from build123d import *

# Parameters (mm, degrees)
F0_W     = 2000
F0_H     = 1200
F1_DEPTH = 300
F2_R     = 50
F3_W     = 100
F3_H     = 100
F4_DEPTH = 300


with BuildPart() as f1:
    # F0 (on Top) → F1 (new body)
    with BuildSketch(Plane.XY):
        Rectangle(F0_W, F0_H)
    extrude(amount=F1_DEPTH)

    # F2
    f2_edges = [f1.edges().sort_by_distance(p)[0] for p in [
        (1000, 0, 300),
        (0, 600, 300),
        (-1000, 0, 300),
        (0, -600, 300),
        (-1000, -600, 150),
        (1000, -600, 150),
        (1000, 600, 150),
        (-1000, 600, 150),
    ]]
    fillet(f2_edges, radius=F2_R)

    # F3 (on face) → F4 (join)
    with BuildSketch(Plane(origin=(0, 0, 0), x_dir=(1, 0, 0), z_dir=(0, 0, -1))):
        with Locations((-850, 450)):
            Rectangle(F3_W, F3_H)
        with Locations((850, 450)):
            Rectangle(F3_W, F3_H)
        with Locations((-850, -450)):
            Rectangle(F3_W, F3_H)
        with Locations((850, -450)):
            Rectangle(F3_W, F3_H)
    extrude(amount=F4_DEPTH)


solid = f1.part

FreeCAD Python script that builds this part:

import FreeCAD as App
import Part
import Sketcher

V = App.Vector


def edges_at(feature, points):
    """Names of the edges that pass closest to the given points."""
    edges = feature.Shape.Edges
    near = lambda p: min(range(len(edges)), key=lambda i: edges[i].distToShape(Part.Vertex(*p))[0])
    return sorted({f"Edge{near(p) + 1}" for p in points})


def add_polygon(sketch, points):
    """Adds a closed chain of lines whose ends are joined by coincident constraints."""
    first, n = sketch.GeometryCount, len(points)
    for a, b in zip(points, points[1:] + points[:1]):
        sketch.addGeometry(Part.LineSegment(App.Vector(*a, 0), App.Vector(*b, 0)), False)
    for i in range(n):
        sketch.addConstraint(Sketcher.Constraint("Coincident", first + i, 2, first + (i + 1) % n, 1))

doc = App.newDocument("Part")
body = doc.addObject("PartDesign::Body", "Body")

# Sketch on XY plane
sketch1 = body.newObject("Sketcher::SketchObject", "Sketch")
sketch1.AttachmentSupport = (doc.getObject("XY_Plane"), [""])
sketch1.MapMode = "FlatFace"
add_polygon(sketch1, [(-1000, 600), (-1000, -600), (1000, -600), (1000, 600)])  # lines 0-3
sketch1.addConstraint(Sketcher.Constraint("Vertical", 0))
sketch1.addConstraint(Sketcher.Constraint("Horizontal", 1))
sketch1.addConstraint(Sketcher.Constraint("Vertical", 2))
sketch1.addConstraint(Sketcher.Constraint("Horizontal", 3))
sketch1.addConstraint(Sketcher.Constraint("Symmetric", 0, 2, 2, 2, -1, 1))
sketch1.addConstraint(Sketcher.Constraint("DistanceX", 1, 1, 1, 2, 2000.0))
sketch1.addConstraint(Sketcher.Constraint("DistanceY", 0, 2, 0, 1, 1200.0))
pad1 = body.newObject("PartDesign::Pad", "Pad")
pad1.Profile = sketch1
pad1.Length = 300
doc.recompute()

fillet = body.newObject("PartDesign::Fillet", "Fillet")
fillet.Base = (pad1, edges_at(pad1, [
    (1000, 0, 300),
    (0, 600, 300),
    (-1000, 0, 300),
    (0, -600, 300),
    (-1000, -600, 150),
    (1000, -600, 150),
    (1000, 600, 150),
    (-1000, 600, 150),
]))
fillet.Radius = 50

# Sketch on XY plane
sketch2 = body.newObject("Sketcher::SketchObject", "Sketch001")
sketch2.AttachmentSupport = (doc.getObject("XY_Plane"), [""])
sketch2.MapMode = "FlatFace"
add_polygon(sketch2, [(-900, -500), (-900, -400), (-800, -400), (-800, -500)])  # lines 0-3
add_polygon(sketch2, [(800, -500), (800, -400), (900, -400), (900, -500)])  # lines 4-7
add_polygon(sketch2, [(-900, 400), (-900, 500), (-800, 500), (-800, 400)])  # lines 8-11
add_polygon(sketch2, [(800, 400), (800, 500), (900, 500), (900, 400)])  # lines 12-15
sketch2.addConstraint(Sketcher.Constraint("Vertical", 0))
sketch2.addConstraint(Sketcher.Constraint("Horizontal", 1))
sketch2.addConstraint(Sketcher.Constraint("Vertical", 2))
sketch2.addConstraint(Sketcher.Constraint("Horizontal", 3))
sketch2.addConstraint(Sketcher.Constraint("Vertical", 4))
sketch2.addConstraint(Sketcher.Constraint("Horizontal", 5))
sketch2.addConstraint(Sketcher.Constraint("Vertical", 6))
sketch2.addConstraint(Sketcher.Constraint("Horizontal", 7))
sketch2.addConstraint(Sketcher.Constraint("Vertical", 8))
sketch2.addConstraint(Sketcher.Constraint("Horizontal", 9))
sketch2.addConstraint(Sketcher.Constraint("Vertical", 10))
sketch2.addConstraint(Sketcher.Constraint("Horizontal", 11))
sketch2.addConstraint(Sketcher.Constraint("Vertical", 12))
sketch2.addConstraint(Sketcher.Constraint("Horizontal", 13))
sketch2.addConstraint(Sketcher.Constraint("Vertical", 14))
sketch2.addConstraint(Sketcher.Constraint("Horizontal", 15))
sketch2.addConstraint(Sketcher.Constraint("Symmetric", 6, 2, 8, 2, -1, 1))
sketch2.addConstraint(Sketcher.Constraint("Symmetric", 4, 2, 10, 2, -1, 1))
sketch2.addConstraint(Sketcher.Constraint("Symmetric", 2, 2, 12, 2, -1, 1))
sketch2.addConstraint(Sketcher.Constraint("Symmetric", 0, 2, 14, 2, -1, 1))
sketch2.addConstraint(Sketcher.Constraint("Symmetric", 1, 2, 4, 2, -2))
sketch2.addConstraint(Sketcher.Constraint("Symmetric", 3, 2, 6, 2, -2))
sketch2.addConstraint(Sketcher.Constraint("Equal", 15, 0))
sketch2.addConstraint(Sketcher.Constraint("DistanceX", 1, 1, 1, 2, 100.0))
sketch2.addConstraint(Sketcher.Constraint("DistanceX", 0, 2, -1, 1, 900.0))
sketch2.addConstraint(Sketcher.Constraint("DistanceY", 0, 2, -1, 1, 400.0))
pad2 = body.newObject("PartDesign::Pad", "Pad001")
pad2.Profile = sketch2
pad2.Length = 300
pad2.Reversed = True

doc.recompute()
